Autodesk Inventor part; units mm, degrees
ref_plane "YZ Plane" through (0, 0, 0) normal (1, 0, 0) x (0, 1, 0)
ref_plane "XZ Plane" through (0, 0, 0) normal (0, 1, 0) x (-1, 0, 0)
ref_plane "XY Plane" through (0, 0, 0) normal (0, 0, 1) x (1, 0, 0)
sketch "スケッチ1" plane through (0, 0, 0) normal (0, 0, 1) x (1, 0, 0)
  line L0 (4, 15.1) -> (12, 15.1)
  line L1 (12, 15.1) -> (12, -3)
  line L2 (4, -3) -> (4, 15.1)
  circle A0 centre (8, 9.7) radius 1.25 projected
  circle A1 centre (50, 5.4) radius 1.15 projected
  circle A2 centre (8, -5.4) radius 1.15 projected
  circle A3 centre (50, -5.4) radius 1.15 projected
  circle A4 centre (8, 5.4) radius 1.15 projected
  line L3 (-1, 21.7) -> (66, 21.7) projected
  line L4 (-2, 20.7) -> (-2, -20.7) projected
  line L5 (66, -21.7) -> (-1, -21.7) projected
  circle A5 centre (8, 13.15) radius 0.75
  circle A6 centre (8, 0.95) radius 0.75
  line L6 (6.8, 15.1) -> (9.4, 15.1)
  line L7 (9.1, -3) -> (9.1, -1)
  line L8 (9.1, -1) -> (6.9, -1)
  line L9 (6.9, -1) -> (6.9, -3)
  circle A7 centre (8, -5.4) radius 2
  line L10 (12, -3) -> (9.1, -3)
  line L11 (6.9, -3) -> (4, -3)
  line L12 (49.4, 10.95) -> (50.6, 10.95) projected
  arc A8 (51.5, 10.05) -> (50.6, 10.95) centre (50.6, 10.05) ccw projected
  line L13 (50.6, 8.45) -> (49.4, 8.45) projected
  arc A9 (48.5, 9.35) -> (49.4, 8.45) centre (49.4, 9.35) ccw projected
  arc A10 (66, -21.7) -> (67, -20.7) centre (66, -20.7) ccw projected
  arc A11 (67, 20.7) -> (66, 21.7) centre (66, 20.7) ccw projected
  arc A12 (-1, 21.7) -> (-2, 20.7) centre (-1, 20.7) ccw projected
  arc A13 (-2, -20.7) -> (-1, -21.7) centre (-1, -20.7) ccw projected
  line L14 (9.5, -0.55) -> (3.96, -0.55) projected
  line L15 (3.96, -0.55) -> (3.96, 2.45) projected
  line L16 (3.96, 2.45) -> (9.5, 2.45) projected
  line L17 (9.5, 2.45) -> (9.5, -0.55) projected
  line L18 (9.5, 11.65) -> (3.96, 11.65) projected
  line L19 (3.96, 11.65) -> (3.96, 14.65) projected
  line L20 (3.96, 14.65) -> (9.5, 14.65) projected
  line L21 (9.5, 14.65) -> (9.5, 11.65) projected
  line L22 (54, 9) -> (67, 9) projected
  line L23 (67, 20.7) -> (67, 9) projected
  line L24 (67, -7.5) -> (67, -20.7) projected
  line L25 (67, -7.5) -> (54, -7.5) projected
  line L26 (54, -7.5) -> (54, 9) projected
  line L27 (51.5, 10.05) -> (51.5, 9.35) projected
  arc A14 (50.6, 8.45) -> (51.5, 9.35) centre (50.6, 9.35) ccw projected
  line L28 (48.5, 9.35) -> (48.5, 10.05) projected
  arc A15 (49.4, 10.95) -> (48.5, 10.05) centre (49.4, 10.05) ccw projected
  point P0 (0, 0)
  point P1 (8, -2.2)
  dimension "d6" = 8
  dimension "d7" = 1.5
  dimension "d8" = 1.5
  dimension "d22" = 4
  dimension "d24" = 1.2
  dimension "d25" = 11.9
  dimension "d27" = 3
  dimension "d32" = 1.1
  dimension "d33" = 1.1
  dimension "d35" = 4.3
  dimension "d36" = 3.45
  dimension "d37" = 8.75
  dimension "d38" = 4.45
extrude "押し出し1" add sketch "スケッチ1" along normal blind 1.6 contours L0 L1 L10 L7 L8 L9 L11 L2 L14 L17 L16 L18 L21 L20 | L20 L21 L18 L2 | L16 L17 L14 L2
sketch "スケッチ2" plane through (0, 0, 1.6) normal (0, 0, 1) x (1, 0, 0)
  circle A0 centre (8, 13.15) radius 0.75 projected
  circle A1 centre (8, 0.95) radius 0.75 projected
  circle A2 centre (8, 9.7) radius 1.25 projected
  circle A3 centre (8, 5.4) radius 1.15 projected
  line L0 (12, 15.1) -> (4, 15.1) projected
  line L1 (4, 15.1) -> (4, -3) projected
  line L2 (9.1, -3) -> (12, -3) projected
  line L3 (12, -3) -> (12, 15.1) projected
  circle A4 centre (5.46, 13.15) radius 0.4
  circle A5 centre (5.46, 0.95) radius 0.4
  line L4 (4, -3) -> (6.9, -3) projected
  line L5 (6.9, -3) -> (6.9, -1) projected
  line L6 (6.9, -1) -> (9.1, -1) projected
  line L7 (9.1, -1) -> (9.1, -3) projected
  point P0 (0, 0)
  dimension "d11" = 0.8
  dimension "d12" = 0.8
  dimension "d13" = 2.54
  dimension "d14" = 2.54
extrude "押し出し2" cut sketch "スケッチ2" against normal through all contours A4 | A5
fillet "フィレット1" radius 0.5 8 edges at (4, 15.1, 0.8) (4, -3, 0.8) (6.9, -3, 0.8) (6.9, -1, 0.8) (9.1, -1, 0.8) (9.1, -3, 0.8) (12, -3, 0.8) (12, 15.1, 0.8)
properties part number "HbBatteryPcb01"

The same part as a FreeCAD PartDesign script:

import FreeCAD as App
import Part
import Sketcher

V = App.Vector


def edges_at(feature, points):
    """Names of the edges that pass closest to the given points."""
    edges = feature.Shape.Edges
    near = lambda p: min(range(len(edges)), key=lambda i: edges[i].distToShape(Part.Vertex(*p))[0])
    return sorted({f"Edge{near(p) + 1}" for p in points})

doc = App.newDocument("Part")
params = doc.addObject("Spreadsheet::Sheet", "Params")
for row, (alias, value) in enumerate([
    ("sketch1_diameter", "1.5 mm"),
    ("sketch1_width", "8 mm"),
    ("sketch1_diameter2", "2.3 mm"),
    ("sketch1_diameter3", "2.5 mm"),
    ("sketch1_height", "2 mm"),
    ("pad1_length", "1.6 mm"),
    ("sketch2_diameter", "0.8 mm"),
    ("fillet_radius", "0.5 mm"),
], start=1):
    params.set(f"A{row}", alias)
    params.set(f"B{row}", "=" + value)
    params.setAlias(f"B{row}", alias)

body = doc.addObject("PartDesign::Body", "Body")

# Sketch on XY plane
sketch1 = doc.addObject("Sketcher::SketchObject", "Sketch")
body.addObject(sketch1)
sketch1.AttachmentSupport = (doc.XY_Plane, [""])
sketch1.MapMode = "FlatFace"
sketch1.addGeometry([
    Part.LineSegment(V(4, 15.1, 0), V(4, -3, 0)),  # 0
    Part.LineSegment(V(4, -3, 0), V(6.9, -3, 0)),  # 1
    Part.LineSegment(V(6.9, -3, 0), V(6.9, -1, 0)),  # 2
    Part.LineSegment(V(6.9, -1, 0), V(9.1, -1, 0)),  # 3
    Part.LineSegment(V(9.1, -1, 0), V(9.1, -3, 0)),  # 4
    Part.LineSegment(V(9.1, -3, 0), V(12, -3, 0)),  # 5
    Part.LineSegment(V(12, -3, 0), V(12, 15.1, 0)),  # 6
    Part.LineSegment(V(12, 15.1, 0), V(4, 15.1, 0)),  # 7
    Part.Circle(V(8, 5.4, 0), V(0, 0, 1), 1.1),  # 8
    Part.Circle(V(8, 9.7, 0), V(0, 0, 1), 1.2),  # 9
    Part.Circle(V(8, 0.9, 0), V(0, 0, 1), 0.8),  # 10
    Part.Circle(V(8, 13.2, 0), V(0, 0, 1), 0.8),  # 11
], False)
sketch1.addConstraint([
    Sketcher.Constraint("Coincident", 0, 2, 1, 1),
    Sketcher.Constraint("Coincident", 1, 2, 2, 1),
    Sketcher.Constraint("Coincident", 2, 2, 3, 1),
    Sketcher.Constraint("Coincident", 3, 2, 4, 1),
    Sketcher.Constraint("Coincident", 4, 2, 5, 1),
    Sketcher.Constraint("Coincident", 5, 2, 6, 1),
    Sketcher.Constraint("Coincident", 6, 2, 7, 1),
    Sketcher.Constraint("Coincident", 7, 2, 0, 1),
    Sketcher.Constraint("Vertical", 0),
    Sketcher.Constraint("Horizontal", 1),
    Sketcher.Constraint("Vertical", 2),
    Sketcher.Constraint("Horizontal", 3),
    Sketcher.Constraint("Vertical", 4),
    Sketcher.Constraint("Horizontal", 5),
    Sketcher.Constraint("Vertical", 6),
    Sketcher.Constraint("Horizontal", 7),
    Sketcher.Constraint("Equal", 10, 11),
    Sketcher.Constraint("Horizontal", 1, 2, 4, 2),
    Sketcher.Constraint("Vertical", 8, 3, 9, 3),
    Sketcher.Constraint("Vertical", 9, 3, 10, 3),
    Sketcher.Constraint("Vertical", 10, 3, 11, 3),
    Sketcher.Constraint("Equal", 1, 5),
    Sketcher.Constraint("Diameter", 10, 1.5),
    Sketcher.Constraint("DistanceX", 7, 2, 7, 1, 8.0),
    Sketcher.Constraint("DistanceX", -1, 1, 8, 3, 8.0),
    Sketcher.Constraint("DistanceX", -1, 1, 0, 2, 4.0),
    Sketcher.Constraint("DistanceY", 0, 2, -1, 1, 3.0),
    Sketcher.Constraint("Diameter", 8, 2.3),
    Sketcher.Constraint("Diameter", 9, 2.5),
    Sketcher.Constraint("DistanceY", 8, 3, 9, 3, 4.3),
    Sketcher.Constraint("DistanceX", 1, 2, 10, 3, 1.1),
    Sketcher.Constraint("DistanceY", 2, 1, 2, 2, 2.0),
    Sketcher.Constraint("DistanceY", 10, 3, 8, 3, 4.45),
    Sketcher.Constraint("DistanceY", 9, 3, 11, 3, 3.45),
    Sketcher.Constraint("DistanceY", 0, 2, 0, 1, 18.1),
    Sketcher.Constraint("DistanceY", -1, 1, 8, 3, 5.4),
])
sketch1.setExpression("Constraints[22]", "Params.sketch1_diameter")
sketch1.setExpression("Constraints[23]", "Params.sketch1_width")
sketch1.setExpression("Constraints[27]", "Params.sketch1_diameter2")
sketch1.setExpression("Constraints[28]", "Params.sketch1_diameter3")
sketch1.setExpression("Constraints[31]", "Params.sketch1_height")
pad1 = doc.addObject("PartDesign::Pad", "Pad")
body.addObject(pad1)
pad1.Profile = sketch1
pad1.setExpression("Length", "Params.pad1_length")

# Sketch on XY plane
sketch2 = doc.addObject("Sketcher::SketchObject", "Sketch001")
body.addObject(sketch2)
sketch2.AttachmentSupport = (doc.XY_Plane, [""])
sketch2.MapMode = "FlatFace"
sketch2.AttachmentOffset = App.Placement(V(0, 0, 1.6), App.Rotation())
sketch2.addGeometry([
    Part.Circle(V(5.46, 13.15, 0), V(0, 0, 1), 0.4),
    Part.Circle(V(5.46, 0.95, 0), V(0, 0, 1), 0.4),
], False)
sketch2.addConstraint([
    Sketcher.Constraint("Equal", 0, 1),
    Sketcher.Constraint("Vertical", 0, 3, 1, 3),
    Sketcher.Constraint("Diameter", 0, 0.8),
    Sketcher.Constraint("DistanceY", 1, 3, 0, 3, 12.2),
    Sketcher.Constraint("DistanceX", -1, 1, 0, 3, 5.46),
    Sketcher.Constraint("DistanceY", -1, 1, 0, 3, 13.15),
])
sketch2.setExpression("Constraints[2]", "Params.sketch2_diameter")
pocket1 = doc.addObject("PartDesign::Pocket", "Pocket")
body.addObject(pocket1)
pocket1.Profile = sketch2
pocket1.Type = "ThroughAll"
doc.recompute()

fillet = doc.addObject("PartDesign::Fillet", "Fillet")
body.addObject(fillet)
fillet.Base = (pocket1, edges_at(pocket1, [
    (4, 15.1, 0.8),
    (4, -3, 0.8),
    (6.9, -3, 0.8),
    (6.9, -1, 0.8),
    (9.1, -1, 0.8),
    (9.1, -3, 0.8),
    (12, -3, 0.8),
    (12, 15.1, 0.8),
]))
fillet.setExpression("Radius", "Params.fillet_radius")

doc.recompute()
